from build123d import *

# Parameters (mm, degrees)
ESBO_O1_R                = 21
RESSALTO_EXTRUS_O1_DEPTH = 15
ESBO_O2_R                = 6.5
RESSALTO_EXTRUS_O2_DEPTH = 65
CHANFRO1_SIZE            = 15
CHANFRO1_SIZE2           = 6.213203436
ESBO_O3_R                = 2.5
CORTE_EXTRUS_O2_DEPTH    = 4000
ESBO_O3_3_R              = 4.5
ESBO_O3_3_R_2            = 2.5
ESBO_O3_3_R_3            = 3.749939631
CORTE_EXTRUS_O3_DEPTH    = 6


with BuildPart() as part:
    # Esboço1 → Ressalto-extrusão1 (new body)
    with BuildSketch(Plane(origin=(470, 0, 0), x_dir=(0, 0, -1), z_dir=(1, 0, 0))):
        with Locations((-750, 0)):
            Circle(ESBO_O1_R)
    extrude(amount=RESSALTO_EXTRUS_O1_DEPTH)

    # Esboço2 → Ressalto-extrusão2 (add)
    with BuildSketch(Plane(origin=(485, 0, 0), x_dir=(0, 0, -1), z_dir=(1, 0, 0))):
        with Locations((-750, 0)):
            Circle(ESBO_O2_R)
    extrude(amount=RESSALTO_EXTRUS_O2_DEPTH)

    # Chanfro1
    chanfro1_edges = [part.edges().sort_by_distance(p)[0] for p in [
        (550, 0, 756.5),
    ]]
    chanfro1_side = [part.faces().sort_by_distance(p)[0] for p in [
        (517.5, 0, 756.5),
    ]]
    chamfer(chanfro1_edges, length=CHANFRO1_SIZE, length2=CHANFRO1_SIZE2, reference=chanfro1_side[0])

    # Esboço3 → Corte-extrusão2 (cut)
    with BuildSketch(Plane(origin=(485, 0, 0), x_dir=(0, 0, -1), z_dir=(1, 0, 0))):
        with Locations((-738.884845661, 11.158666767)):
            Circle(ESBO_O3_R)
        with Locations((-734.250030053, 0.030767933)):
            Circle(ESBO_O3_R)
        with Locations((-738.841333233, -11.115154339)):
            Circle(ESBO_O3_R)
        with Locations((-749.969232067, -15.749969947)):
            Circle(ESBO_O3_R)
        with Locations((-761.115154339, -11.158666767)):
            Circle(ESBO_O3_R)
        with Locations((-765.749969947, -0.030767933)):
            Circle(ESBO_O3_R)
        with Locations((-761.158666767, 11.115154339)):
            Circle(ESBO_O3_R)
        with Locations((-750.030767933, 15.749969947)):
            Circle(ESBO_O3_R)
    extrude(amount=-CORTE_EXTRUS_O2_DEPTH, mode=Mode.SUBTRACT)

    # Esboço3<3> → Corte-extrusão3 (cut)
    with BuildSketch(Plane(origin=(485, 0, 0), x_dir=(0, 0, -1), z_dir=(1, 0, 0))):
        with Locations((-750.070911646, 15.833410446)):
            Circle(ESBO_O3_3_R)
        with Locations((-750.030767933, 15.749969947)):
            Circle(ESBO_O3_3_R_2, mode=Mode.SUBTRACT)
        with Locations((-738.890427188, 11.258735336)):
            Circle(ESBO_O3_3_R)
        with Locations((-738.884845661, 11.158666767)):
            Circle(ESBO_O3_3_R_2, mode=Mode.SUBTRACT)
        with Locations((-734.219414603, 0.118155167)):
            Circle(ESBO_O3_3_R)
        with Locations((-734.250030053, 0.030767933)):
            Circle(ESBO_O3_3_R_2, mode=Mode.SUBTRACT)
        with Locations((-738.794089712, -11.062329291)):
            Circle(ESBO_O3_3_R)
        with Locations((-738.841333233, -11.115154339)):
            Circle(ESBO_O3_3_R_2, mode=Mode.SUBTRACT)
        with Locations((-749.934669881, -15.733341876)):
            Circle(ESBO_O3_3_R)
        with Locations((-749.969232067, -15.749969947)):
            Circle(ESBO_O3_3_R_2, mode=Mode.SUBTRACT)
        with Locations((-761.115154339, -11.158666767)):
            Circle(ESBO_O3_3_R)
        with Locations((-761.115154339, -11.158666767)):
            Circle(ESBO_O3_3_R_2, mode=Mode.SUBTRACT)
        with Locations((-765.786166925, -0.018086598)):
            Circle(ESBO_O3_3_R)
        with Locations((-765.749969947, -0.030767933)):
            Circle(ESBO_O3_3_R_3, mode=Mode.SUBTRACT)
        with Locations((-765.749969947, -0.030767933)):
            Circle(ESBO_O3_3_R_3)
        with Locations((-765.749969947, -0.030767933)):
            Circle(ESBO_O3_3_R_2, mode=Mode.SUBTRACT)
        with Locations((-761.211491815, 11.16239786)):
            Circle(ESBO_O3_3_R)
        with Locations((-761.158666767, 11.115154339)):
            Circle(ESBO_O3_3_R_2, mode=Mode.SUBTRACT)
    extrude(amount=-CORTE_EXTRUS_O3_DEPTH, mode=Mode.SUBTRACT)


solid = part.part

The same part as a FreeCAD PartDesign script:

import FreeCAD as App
import Part
import Sketcher
Q = App.Units.Quantity


def edges_at(feature, points):
    """Names of the edges that pass closest to the given points."""
    edges = feature.Shape.Edges
    near = lambda p: min(range(len(edges)), key=lambda i: edges[i].distToShape(Part.Vertex(*p))[0])
    return sorted({f"Edge{near(p) + 1}" for p in points})

doc = App.newDocument("Part")
params = doc.addObject("Spreadsheet::Sheet", "Params")
for row, (alias, value) in enumerate([
    ("sketch1_diameter", "42 mm"),
    ("pad1_length", "15 mm"),
    ("sketch2_diameter", "13 mm"),
    ("pad2_length", "65 mm"),
    ("chamfer_size", "15 mm"),
    ("chamfer_size2", "6.213203 mm"),
    ("sketch3_diameter", "5 mm"),
    ("pocket1_length", "4000 mm"),
    ("sketch4_diameter", "9 mm"),
    ("sketch4_diameter2", "5 mm"),
    ("pocket2_length", "6 mm"),
], start=1):
    params.set(f"A{row}", alias)
    params.set(f"B{row}", "=" + value)
    params.setAlias(f"B{row}", alias)

body = doc.addObject("PartDesign::Body", "Body")

sketch1 = body.newObject("Sketcher::SketchObject", "Sketch")
sketch1.AttachmentSupport = (doc.getObject("YZ_Plane"), [""])
sketch1.MapMode = "FlatFace"
sketch1.AttachmentOffset = App.Placement(App.Vector(0, 0, 470), App.Rotation())
sketch1.addGeometry(Part.Circle(App.Vector(0, 750, 0), App.Vector(0, 0, 1), 21), False)
sketch1.addConstraint(Sketcher.Constraint("PointOnObject", 0, 3, -2))
sketch1.addConstraint(Sketcher.Constraint("Diameter", 0, Q("42 mm")))
sketch1.addConstraint(Sketcher.Constraint("DistanceY", -1, 1, 0, 3, Q("750 mm")))
sketch1.setExpression("Constraints[1]", "Params.sketch1_diameter")
pad1 = body.newObject("PartDesign::Pad", "Pad")
pad1.Profile = sketch1
pad1.setExpression("Length", "Params.pad1_length")

sketch2 = body.newObject("Sketcher::SketchObject", "Sketch001")
sketch2.AttachmentSupport = (doc.getObject("YZ_Plane"), [""])
sketch2.MapMode = "FlatFace"
sketch2.AttachmentOffset = App.Placement(App.Vector(0, 0, 485), App.Rotation())
sketch2.addGeometry(Part.Circle(App.Vector(0, 750, 0), App.Vector(0, 0, 1), 6), False)
sketch2.addConstraint(Sketcher.Constraint("PointOnObject", 0, 3, -2))
sketch2.addConstraint(Sketcher.Constraint("Diameter", 0, Q("13 mm")))
sketch2.addConstraint(Sketcher.Constraint("DistanceY", -1, 1, 0, 3, Q("750 mm")))
sketch2.setExpression("Constraints[1]", "Params.sketch2_diameter")
pad2 = body.newObject("PartDesign::Pad", "Pad001")
pad2.Profile = sketch2
pad2.setExpression("Length", "Params.pad2_length")
doc.recompute()

chamfer = body.newObject("PartDesign::Chamfer", "Chamfer")
chamfer.Base = (pad2, edges_at(pad2, [(550, 0, 756.5)]))
chamfer.ChamferType = "Two distances"
chamfer.setExpression("Size", "Params.chamfer_size")
chamfer.setExpression("Size2", "Params.chamfer_size2")

sketch3 = body.newObject("Sketcher::SketchObject", "Sketch002")
sketch3.AttachmentSupport = (doc.getObject("YZ_Plane"), [""])
sketch3.MapMode = "FlatFace"
sketch3.AttachmentOffset = App.Placement(App.Vector(0, 0, 485), App.Rotation())
sketch3.addGeometry(Part.Circle(App.Vector(11.2, 738.9, 0), App.Vector(0, 0, 1), 2.5), False)
sketch3.addGeometry(Part.Circle(App.Vector(0, 734.3, 0), App.Vector(0, 0, 1), 2.5), False)
sketch3.addGeometry(Part.Circle(App.Vector(-11.1, 738.8, 0), App.Vector(0, 0, 1), 2.5), False)
sketch3.addGeometry(Part.Circle(App.Vector(-15.7, 750, 0), App.Vector(0, 0, 1), 2.5), False)
sketch3.addGeometry(Part.Circle(App.Vector(-11.2, 761.1, 0), App.Vector(0, 0, 1), 2.5), False)
sketch3.addGeometry(Part.Circle(App.Vector(0, 765.7, 0), App.Vector(0, 0, 1), 2.5), False)
sketch3.addGeometry(Part.Circle(App.Vector(11.1, 761.2, 0), App.Vector(0, 0, 1), 2.5), False)
sketch3.addGeometry(Part.Circle(App.Vector(15.7, 750, 0), App.Vector(0, 0, 1), 2.5), False)
sketch3.addConstraint(Sketcher.Constraint("Equal", 0, 1))
sketch3.addConstraint(Sketcher.Constraint("Equal", 1, 2))
sketch3.addConstraint(Sketcher.Constraint("Equal", 2, 3))
sketch3.addConstraint(Sketcher.Constraint("Equal", 3, 4))
sketch3.addConstraint(Sketcher.Constraint("Equal", 4, 5))
sketch3.addConstraint(Sketcher.Constraint("Equal", 5, 6))
sketch3.addConstraint(Sketcher.Constraint("Equal", 6, 7))
sketch3.addConstraint(Sketcher.Constraint("Diameter", 0, Q("5 mm")))
sketch3.addConstraint(Sketcher.Constraint("DistanceX", 1, 3, 0, 3, Q("11.127899 mm")))
sketch3.addConstraint(Sketcher.Constraint("DistanceY", 2, 3, 3, 3, Q("11.127899 mm")))
sketch3.addConstraint(Sketcher.Constraint("DistanceX", 4, 3, 5, 3, Q("11.127899 mm")))
sketch3.addConstraint(Sketcher.Constraint("DistanceY", 7, 3, 6, 3, Q("11.127899 mm")))
sketch3.addConstraint(Sketcher.Constraint("DistanceY", -1, 1, 1, 3, Q("734.25003 mm")))
sketch3.addConstraint(Sketcher.Constraint("DistanceX", 3, 3, -1, 1, Q("15.74997 mm")))
sketch3.addConstraint(Sketcher.Constraint("DistanceY", -1, 1, 5, 3, Q("765.74997 mm")))
sketch3.addConstraint(Sketcher.Constraint("DistanceX", -1, 1, 7, 3, Q("15.74997 mm")))
sketch3.addConstraint(Sketcher.Constraint("DistanceX", 2, 3, 0, 3, Q("22.273821 mm")))
sketch3.addConstraint(Sketcher.Constraint("DistanceY", 2, 3, 4, 3, Q("22.273821 mm")))
sketch3.addConstraint(Sketcher.Constraint("DistanceY", 0, 3, 4, 3, Q("22.230309 mm")))
sketch3.addConstraint(Sketcher.Constraint("DistanceX", 4, 3, 6, 3, Q("22.273821 mm")))
sketch3.addConstraint(Sketcher.Constraint("DistanceY", 0, 3, 6, 3, Q("22.273821 mm")))
sketch3.addConstraint(Sketcher.Constraint("DistanceX", -1, 1, 0, 3, Q("11.158667 mm")))
sketch3.addConstraint(Sketcher.Constraint("DistanceY", -1, 1, 0, 3, Q("738.884846 mm")))
sketch3.addConstraint(Sketcher.Constraint("DistanceX", 4, 3, -1, 1, Q("11.158667 mm")))
sketch3.setExpression("Constraints[7]", "Params.sketch3_diameter")
pocket1 = body.newObject("PartDesign::Pocket", "Pocket")
pocket1.Profile = sketch3
pocket1.setExpression("Length", "Params.pocket1_length")

sketch4 = body.newObject("Sketcher::SketchObject", "Sketch003")
sketch4.AttachmentSupport = (doc.getObject("YZ_Plane"), [""])
sketch4.MapMode = "FlatFace"
sketch4.AttachmentOffset = App.Placement(App.Vector(0, 0, 485), App.Rotation())
sketch4.addGeometry(Part.Circle(App.Vector(15.8, 750.1, 0), App.Vector(0, 0, 1), 4.5), False)
sketch4.addGeometry(Part.Circle(App.Vector(15.7, 750, 0), App.Vector(0, 0, 1), 2.5), False)
sketch4.addGeometry(Part.Circle(App.Vector(11.3, 738.9, 0), App.Vector(0, 0, 1), 4.5), False)
sketch4.addGeometry(Part.Circle(App.Vector(11.2, 738.9, 0), App.Vector(0, 0, 1), 2.5), False)
sketch4.addGeometry(Part.Circle(App.Vector(0.1, 734.2, 0), App.Vector(0, 0, 1), 4.5), False)
sketch4.addGeometry(Part.Circle(App.Vector(0, 734.3, 0), App.Vector(0, 0, 1), 2.5), False)
sketch4.addGeometry(Part.Circle(App.Vector(-11.1, 738.8, 0), App.Vector(0, 0, 1), 4.5), False)
sketch4.addGeometry(Part.Circle(App.Vector(-11.1, 738.8, 0), App.Vector(0, 0, 1), 2.5), False)
sketch4.addGeometry(Part.Circle(App.Vector(-15.7, 749.9, 0), App.Vector(0, 0, 1), 4.5), False)
sketch4.addGeometry(Part.Circle(App.Vector(-15.7, 750, 0), App.Vector(0, 0, 1), 2.5), False)
sketch4.addGeometry(Part.Circle(App.Vector(-11.2, 761.1, 0), App.Vector(0, 0, 1), 4.5), False)
sketch4.addGeometry(Part.Circle(App.Vector(-11.2, 761.1, 0), App.Vector(0, 0, 1), 2.5), False)
sketch4.addGeometry(Part.Circle(App.Vector(0, 765.8, 0), App.Vector(0, 0, 1), 4.5), False)
sketch4.addGeometry(Part.Circle(App.Vector(0, 765.7, 0), App.Vector(0, 0, 1), 2.5), False)
sketch4.addGeometry(Part.Circle(App.Vector(11.2, 761.2, 0), App.Vector(0, 0, 1), 4.5), False)
sketch4.addGeometry(Part.Circle(App.Vector(11.1, 761.2, 0), App.Vector(0, 0, 1), 2.5), False)
sketch4.addConstraint(Sketcher.Constraint("Coincident", 11, 3, 10, 3))
sketch4.addConstraint(Sketcher.Constraint("Equal", 0, 2))
sketch4.addConstraint(Sketcher.Constraint("Equal", 1, 3))
sketch4.addConstraint(Sketcher.Constraint("Equal", 2, 4))
sketch4.addConstraint(Sketcher.Constraint("Equal", 3, 5))
sketch4.addConstraint(Sketcher.Constraint("Equal", 4, 6))
sketch4.addConstraint(Sketcher.Constraint("Equal", 5, 7))
sketch4.addConstraint(Sketcher.Constraint("Equal", 6, 8))
sketch4.addConstraint(Sketcher.Constraint("Equal", 7, 9))
sketch4.addConstraint(Sketcher.Constraint("Equal", 8, 10))
sketch4.addConstraint(Sketcher.Constraint("Equal", 9, 11))
sketch4.addConstraint(Sketcher.Constraint("Equal", 10, 12))
sketch4.addConstraint(Sketcher.Constraint("Equal", 11, 13))
sketch4.addConstraint(Sketcher.Constraint("Equal", 12, 14))
sketch4.addConstraint(Sketcher.Constraint("Equal", 13, 15))
sketch4.addConstraint(Sketcher.Constraint("Diameter", 0, Q("9 mm")))
sketch4.addConstraint(Sketcher.Constraint("Diameter", 1, Q("5 mm")))
sketch4.addConstraint(Sketcher.Constraint("DistanceX", 5, 3, 3, 3, Q("11.127899 mm")))
sketch4.addConstraint(Sketcher.Constraint("DistanceX", 6, 3, 1, 3, Q("26.812299 mm")))
sketch4.addConstraint(Sketcher.Constraint("DistanceY", 7, 3, 9, 3, Q("11.127899 mm")))
sketch4.addConstraint(Sketcher.Constraint("DistanceY", 1, 3, 12, 3, Q("15.755399 mm")))
sketch4.addConstraint(Sketcher.Constraint("DistanceX", 10, 3, 13, 3, Q("11.127899 mm")))
sketch4.addConstraint(Sketcher.Constraint("DistanceY", 1, 3, 15, 3, Q("11.127899 mm")))
sketch4.addConstraint(Sketcher.Constraint("DistanceX", -1, 1, 0, 3, Q("15.83341 mm")))
sketch4.addConstraint(Sketcher.Constraint("DistanceY", -1, 1, 0, 3, Q("750.070912 mm")))
sketch4.addConstraint(Sketcher.Constraint("DistanceX", -1, 1, 1, 3, Q("15.74997 mm")))
sketch4.addConstraint(Sketcher.Constraint("DistanceY", -1, 1, 5, 3, Q("734.25003 mm")))
sketch4.addConstraint(Sketcher.Constraint("DistanceY", -1, 1, 6, 3, Q("738.79409 mm")))
sketch4.addConstraint(Sketcher.Constraint("DistanceX", 8, 3, -1, 1, Q("15.733342 mm")))
sketch4.addConstraint(Sketcher.Constraint("DistanceY", -1, 1, 8, 3, Q("749.93467 mm")))
sketch4.addConstraint(Sketcher.Constraint("DistanceX", 9, 3, -1, 1, Q("15.74997 mm")))
sketch4.addConstraint(Sketcher.Constraint("DistanceY", -1, 1, 13, 3, Q("765.74997 mm")))
sketch4.addConstraint(Sketcher.Constraint("DistanceY", -1, 1, 14, 3, Q("761.211492 mm")))
sketch4.addConstraint(Sketcher.Constraint("DistanceY", 2, 3, 1, 3, Q("11.140341 mm")))
sketch4.addConstraint(Sketcher.Constraint("DistanceX", 3, 3, 2, 3, Q("0.100069 mm")))
sketch4.addConstraint(Sketcher.Constraint("DistanceY", 3, 3, 2, 3, Q("0.005582 mm")))
sketch4.addConstraint(Sketcher.Constraint("DistanceX", 4, 3, 3, 3, Q("11.040512 mm")))
sketch4.addConstraint(Sketcher.Constraint("DistanceY", 4, 3, 3, 3, Q("4.665431 mm")))
sketch4.addConstraint(Sketcher.Constraint("DistanceY", 6, 3, 1, 3, Q("11.236678 mm")))
sketch4.addConstraint(Sketcher.Constraint("DistanceX", 7, 3, 4, 3, Q("11.23331 mm")))
sketch4.addConstraint(Sketcher.Constraint("DistanceY", 4, 3, 7, 3, Q("4.621919 mm")))
sketch4.addConstraint(Sketcher.Constraint("DistanceX", 8, 3, 5, 3, Q("15.76411 mm")))
sketch4.addConstraint(Sketcher.Constraint("DistanceY", 7, 3, 10, 3, Q("22.273821 mm")))
sketch4.addConstraint(Sketcher.Constraint("DistanceX", 10, 3, 12, 3, Q("11.14058 mm")))
sketch4.addConstraint(Sketcher.Constraint("DistanceX", 12, 3, 15, 3, Q("11.133241 mm")))
sketch4.addConstraint(Sketcher.Constraint("DistanceX", 10, 3, -1, 1, Q("11.158667 mm")))
sketch4.addConstraint(Sketcher.Constraint("DistanceX", -1, 1, 14, 3, Q("11.162398 mm")))
sketch4.setExpression("Constraints[15]", "Params.sketch4_diameter")
sketch4.setExpression("Constraints[16]", "Params.sketch4_diameter2")
pocket2 = body.newObject("PartDesign::Pocket", "Pocket001")
pocket2.Profile = sketch4
pocket2.setExpression("Length", "Params.pocket2_length")

doc.recompute()
